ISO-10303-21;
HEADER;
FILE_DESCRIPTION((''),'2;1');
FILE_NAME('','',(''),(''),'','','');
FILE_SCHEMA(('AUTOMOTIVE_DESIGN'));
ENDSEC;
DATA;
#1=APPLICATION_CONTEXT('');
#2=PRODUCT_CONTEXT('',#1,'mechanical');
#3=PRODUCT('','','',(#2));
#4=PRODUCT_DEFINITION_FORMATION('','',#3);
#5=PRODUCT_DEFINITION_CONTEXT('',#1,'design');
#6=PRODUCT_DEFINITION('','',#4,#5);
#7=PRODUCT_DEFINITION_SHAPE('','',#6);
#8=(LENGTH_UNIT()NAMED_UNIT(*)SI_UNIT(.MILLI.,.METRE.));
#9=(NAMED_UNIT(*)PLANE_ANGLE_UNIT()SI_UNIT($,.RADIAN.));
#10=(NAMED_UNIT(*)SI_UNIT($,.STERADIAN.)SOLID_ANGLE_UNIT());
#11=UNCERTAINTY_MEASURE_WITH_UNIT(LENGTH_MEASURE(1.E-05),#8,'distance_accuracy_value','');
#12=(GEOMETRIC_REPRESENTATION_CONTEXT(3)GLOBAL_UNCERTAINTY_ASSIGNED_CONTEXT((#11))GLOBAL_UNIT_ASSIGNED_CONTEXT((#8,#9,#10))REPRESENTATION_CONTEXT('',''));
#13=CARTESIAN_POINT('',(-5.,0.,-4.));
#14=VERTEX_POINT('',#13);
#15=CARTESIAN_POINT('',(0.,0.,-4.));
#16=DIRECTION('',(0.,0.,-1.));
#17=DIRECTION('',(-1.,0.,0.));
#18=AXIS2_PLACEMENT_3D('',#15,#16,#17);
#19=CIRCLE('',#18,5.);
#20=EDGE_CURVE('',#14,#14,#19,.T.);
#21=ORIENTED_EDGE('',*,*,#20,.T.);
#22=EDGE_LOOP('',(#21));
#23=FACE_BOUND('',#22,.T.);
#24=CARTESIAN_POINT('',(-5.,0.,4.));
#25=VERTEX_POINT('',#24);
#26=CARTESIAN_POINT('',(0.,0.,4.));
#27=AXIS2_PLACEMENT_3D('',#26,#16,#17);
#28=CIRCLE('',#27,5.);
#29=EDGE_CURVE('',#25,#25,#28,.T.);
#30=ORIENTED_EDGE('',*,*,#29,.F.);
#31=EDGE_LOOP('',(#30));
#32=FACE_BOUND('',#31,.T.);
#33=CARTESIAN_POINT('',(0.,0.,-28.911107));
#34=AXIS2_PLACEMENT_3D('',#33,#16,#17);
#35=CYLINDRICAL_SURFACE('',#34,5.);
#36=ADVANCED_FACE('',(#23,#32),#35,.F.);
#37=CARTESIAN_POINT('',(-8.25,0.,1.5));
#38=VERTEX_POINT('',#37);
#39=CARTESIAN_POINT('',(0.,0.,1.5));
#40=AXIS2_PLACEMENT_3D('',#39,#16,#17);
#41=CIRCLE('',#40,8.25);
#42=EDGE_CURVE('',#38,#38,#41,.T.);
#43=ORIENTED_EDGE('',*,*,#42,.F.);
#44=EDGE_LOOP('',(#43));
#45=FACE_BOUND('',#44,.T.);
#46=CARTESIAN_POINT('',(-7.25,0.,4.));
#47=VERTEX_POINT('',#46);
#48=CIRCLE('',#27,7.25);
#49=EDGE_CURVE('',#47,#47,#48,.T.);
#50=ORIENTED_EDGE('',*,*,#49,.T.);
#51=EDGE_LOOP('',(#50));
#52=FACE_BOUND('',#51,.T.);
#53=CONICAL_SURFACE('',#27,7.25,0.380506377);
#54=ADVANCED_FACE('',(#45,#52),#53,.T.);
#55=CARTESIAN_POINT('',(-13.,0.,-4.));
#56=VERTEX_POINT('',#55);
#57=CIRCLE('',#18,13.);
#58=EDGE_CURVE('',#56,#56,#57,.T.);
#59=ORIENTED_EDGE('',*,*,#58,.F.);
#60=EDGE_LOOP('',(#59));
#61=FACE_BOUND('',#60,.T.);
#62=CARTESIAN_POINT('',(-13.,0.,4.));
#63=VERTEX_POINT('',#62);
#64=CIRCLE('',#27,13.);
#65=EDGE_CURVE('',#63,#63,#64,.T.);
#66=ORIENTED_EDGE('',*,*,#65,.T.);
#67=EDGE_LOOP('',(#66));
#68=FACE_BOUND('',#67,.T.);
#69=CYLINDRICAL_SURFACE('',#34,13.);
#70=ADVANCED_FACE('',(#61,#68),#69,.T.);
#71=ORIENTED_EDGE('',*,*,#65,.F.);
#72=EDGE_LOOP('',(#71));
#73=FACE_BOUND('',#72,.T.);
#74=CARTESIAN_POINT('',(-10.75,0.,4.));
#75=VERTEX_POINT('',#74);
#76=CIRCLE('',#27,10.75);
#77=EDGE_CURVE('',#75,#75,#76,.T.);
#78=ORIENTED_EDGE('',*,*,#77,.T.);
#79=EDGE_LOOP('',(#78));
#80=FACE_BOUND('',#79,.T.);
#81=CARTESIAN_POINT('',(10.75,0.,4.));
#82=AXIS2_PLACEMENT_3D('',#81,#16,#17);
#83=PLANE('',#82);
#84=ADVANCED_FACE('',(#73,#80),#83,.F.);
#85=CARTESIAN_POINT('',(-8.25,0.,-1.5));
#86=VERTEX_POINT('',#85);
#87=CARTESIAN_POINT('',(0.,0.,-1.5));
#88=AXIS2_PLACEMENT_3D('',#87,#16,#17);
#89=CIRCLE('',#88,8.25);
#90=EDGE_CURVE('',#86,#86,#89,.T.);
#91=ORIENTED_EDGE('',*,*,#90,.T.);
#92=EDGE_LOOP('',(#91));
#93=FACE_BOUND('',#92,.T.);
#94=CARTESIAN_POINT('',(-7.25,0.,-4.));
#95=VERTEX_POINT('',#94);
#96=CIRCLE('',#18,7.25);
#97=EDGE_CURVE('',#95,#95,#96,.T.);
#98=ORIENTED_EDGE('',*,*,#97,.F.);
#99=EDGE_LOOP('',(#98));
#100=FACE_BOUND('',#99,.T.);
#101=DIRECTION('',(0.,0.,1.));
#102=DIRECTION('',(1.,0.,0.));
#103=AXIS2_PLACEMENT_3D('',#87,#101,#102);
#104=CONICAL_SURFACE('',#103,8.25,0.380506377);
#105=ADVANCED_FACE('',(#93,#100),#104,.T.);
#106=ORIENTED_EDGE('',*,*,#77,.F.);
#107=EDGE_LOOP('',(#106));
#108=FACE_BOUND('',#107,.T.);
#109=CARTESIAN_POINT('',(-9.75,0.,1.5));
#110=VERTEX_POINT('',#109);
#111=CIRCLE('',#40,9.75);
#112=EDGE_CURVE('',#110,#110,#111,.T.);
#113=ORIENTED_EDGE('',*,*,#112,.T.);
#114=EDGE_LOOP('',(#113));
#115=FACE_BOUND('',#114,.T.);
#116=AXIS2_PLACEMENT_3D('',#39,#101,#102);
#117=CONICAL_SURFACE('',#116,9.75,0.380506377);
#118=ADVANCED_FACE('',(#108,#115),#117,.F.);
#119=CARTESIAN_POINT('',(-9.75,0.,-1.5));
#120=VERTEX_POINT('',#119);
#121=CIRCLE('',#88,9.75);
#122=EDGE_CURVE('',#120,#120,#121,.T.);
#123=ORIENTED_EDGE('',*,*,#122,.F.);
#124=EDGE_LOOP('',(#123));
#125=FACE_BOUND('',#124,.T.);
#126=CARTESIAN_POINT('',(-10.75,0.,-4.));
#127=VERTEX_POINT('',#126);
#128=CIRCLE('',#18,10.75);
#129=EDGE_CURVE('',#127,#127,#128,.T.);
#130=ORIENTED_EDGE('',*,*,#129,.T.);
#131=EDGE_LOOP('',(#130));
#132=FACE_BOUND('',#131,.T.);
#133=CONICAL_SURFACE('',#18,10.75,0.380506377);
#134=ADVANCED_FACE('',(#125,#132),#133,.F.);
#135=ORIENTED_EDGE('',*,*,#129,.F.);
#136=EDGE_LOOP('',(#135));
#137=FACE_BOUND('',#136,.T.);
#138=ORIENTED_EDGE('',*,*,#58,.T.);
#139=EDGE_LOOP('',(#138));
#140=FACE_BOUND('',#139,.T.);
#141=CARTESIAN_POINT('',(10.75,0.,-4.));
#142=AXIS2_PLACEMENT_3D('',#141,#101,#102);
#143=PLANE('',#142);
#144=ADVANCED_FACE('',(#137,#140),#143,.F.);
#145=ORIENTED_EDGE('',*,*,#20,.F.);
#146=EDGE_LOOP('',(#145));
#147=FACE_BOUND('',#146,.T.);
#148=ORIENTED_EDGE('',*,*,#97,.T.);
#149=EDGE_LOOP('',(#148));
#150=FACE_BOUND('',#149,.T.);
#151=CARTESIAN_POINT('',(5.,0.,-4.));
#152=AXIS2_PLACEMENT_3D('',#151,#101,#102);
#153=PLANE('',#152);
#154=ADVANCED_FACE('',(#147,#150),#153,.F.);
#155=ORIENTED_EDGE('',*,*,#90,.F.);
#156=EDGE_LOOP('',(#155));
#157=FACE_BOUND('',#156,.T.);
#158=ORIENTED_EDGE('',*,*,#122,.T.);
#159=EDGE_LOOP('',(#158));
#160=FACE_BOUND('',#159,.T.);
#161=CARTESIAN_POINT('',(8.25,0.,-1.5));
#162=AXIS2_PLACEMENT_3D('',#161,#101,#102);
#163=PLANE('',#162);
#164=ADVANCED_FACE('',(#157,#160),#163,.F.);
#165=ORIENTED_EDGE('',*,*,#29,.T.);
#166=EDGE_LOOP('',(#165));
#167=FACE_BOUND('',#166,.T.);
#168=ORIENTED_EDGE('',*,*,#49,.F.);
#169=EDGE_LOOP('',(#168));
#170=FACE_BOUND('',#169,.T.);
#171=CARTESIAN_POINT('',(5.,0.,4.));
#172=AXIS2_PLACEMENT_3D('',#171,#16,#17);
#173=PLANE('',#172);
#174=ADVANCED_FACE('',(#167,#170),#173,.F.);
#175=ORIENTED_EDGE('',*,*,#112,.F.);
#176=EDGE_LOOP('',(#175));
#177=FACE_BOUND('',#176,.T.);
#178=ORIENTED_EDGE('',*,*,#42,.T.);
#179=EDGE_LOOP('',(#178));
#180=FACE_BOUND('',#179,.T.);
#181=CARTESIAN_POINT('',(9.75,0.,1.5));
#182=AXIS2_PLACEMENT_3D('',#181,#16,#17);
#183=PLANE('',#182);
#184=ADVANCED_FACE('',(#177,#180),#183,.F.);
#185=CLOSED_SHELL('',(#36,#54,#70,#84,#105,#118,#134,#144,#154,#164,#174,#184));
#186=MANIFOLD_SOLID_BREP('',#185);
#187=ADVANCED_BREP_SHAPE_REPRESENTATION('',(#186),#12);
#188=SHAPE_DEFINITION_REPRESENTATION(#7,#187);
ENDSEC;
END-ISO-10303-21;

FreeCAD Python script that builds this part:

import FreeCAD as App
import Part
import Sketcher

V = App.Vector
Q = App.Units.Quantity

doc = App.newDocument("Part")
params = doc.addObject("Spreadsheet::Sheet", "Params")
for row, (alias, value) in enumerate([
    ("sketch1_height", "8 mm"),
    ("sketch1_width", "1.5 mm"),
    ("revolution_angle", "360 deg"),
], start=1):
    params.set(f"A{row}", alias)
    params.set(f"B{row}", "=" + value)
    params.setAlias(f"B{row}", alias)

body = doc.addObject("PartDesign::Body", "Body")

sketch1 = doc.addObject("Sketcher::SketchObject", "Sketch")
body.addObject(sketch1)
sketch1.AttachmentSupport = (doc.XZ_Plane, [""])
sketch1.MapMode = "FlatFace"
sketch1.addGeometry(Part.LineSegment(V(8.2, -1.5, 0), V(7.2, -4, 0)), False)
sketch1.addGeometry(Part.LineSegment(V(7.2, -4, 0), V(5, -4, 0)), False)
sketch1.addGeometry(Part.LineSegment(V(5, -4, 0), V(5, 4, 0)), False)
sketch1.addGeometry(Part.LineSegment(V(5, 4, 0), V(7.2, 4, 0)), False)
sketch1.addGeometry(Part.LineSegment(V(7.2, 4, 0), V(8.2, 1.5, 0)), False)
sketch1.addGeometry(Part.LineSegment(V(8.2, 1.5, 0), V(9.8, 1.5, 0)), False)
sketch1.addGeometry(Part.LineSegment(V(9.8, 1.5, 0), V(10.8, 4, 0)), False)
sketch1.addGeometry(Part.LineSegment(V(10.8, 4, 0), V(13, 4, 0)), False)
sketch1.addGeometry(Part.LineSegment(V(13, 4, 0), V(13, -4, 0)), False)
sketch1.addGeometry(Part.LineSegment(V(13, -4, 0), V(10.8, -4, 0)), False)
sketch1.addGeometry(Part.LineSegment(V(10.8, -4, 0), V(9.8, -1.5, 0)), False)
sketch1.addGeometry(Part.LineSegment(V(9.8, -1.5, 0), V(8.2, -1.5, 0)), False)
sketch1.addConstraint(Sketcher.Constraint("Coincident", 0, 2, 1, 1))
sketch1.addConstraint(Sketcher.Constraint("Coincident", 1, 2, 2, 1))
sketch1.addConstraint(Sketcher.Constraint("Coincident", 2, 2, 3, 1))
sketch1.addConstraint(Sketcher.Constraint("Coincident", 3, 2, 4, 1))
sketch1.addConstraint(Sketcher.Constraint("Coincident", 4, 2, 5, 1))
sketch1.addConstraint(Sketcher.Constraint("Coincident", 5, 2, 6, 1))
sketch1.addConstraint(Sketcher.Constraint("Coincident", 6, 2, 7, 1))
sketch1.addConstraint(Sketcher.Constraint("Coincident", 7, 2, 8, 1))
sketch1.addConstraint(Sketcher.Constraint("Coincident", 8, 2, 9, 1))
sketch1.addConstraint(Sketcher.Constraint("Coincident", 9, 2, 10, 1))
sketch1.addConstraint(Sketcher.Constraint("Coincident", 10, 2, 11, 1))
sketch1.addConstraint(Sketcher.Constraint("Coincident", 11, 2, 0, 1))
sketch1.addConstraint(Sketcher.Constraint("Horizontal", 1))
sketch1.addConstraint(Sketcher.Constraint("Vertical", 2))
sketch1.addConstraint(Sketcher.Constraint("Horizontal", 3))
sketch1.addConstraint(Sketcher.Constraint("Horizontal", 5))
sketch1.addConstraint(Sketcher.Constraint("Horizontal", 7))
sketch1.addConstraint(Sketcher.Constraint("Vertical", 8))
sketch1.addConstraint(Sketcher.Constraint("Horizontal", 9))
sketch1.addConstraint(Sketcher.Constraint("Horizontal", 11))
sketch1.addConstraint(Sketcher.Constraint("Symmetric", 0, 2, 3, 2, -1))
sketch1.addConstraint(Sketcher.Constraint("Symmetric", 6, 2, 9, 2, -1))
sketch1.addConstraint(Sketcher.Constraint("Symmetric", 5, 2, 10, 2, -1))
sketch1.addConstraint(Sketcher.Constraint("Parallel", 0, 6))
sketch1.addConstraint(Sketcher.Constraint("Parallel", 4, 10))
sketch1.addConstraint(Sketcher.Constraint("Horizontal", 3, 2, 6, 2))
sketch1.addConstraint(Sketcher.Constraint("Equal", 3, 7))
sketch1.addConstraint(Sketcher.Constraint("DistanceY", 2, 1, 2, 2, Q("8 mm")))
sketch1.addConstraint(Sketcher.Constraint("DistanceX", 5, 1, 5, 2, Q("1.5 mm")))
sketch1.addConstraint(Sketcher.Constraint("DistanceX", -1, 1, 1, 2, Q("5 mm")))
sketch1.addConstraint(Sketcher.Constraint("DistanceX", -1, 1, 7, 2, Q("13 mm")))
sketch1.addConstraint(Sketcher.Constraint("DistanceX", 3, 2, 4, 2, Q("1 mm")))
sketch1.addConstraint(Sketcher.Constraint("DistanceY", 10, 2, 5, 2, Q("3 mm")))
sketch1.setExpression("Constraints[27]", "Params.sketch1_height")
sketch1.setExpression("Constraints[28]", "Params.sketch1_width")
revolution = doc.addObject("PartDesign::Revolution", "Revolution")
body.addObject(revolution)
revolution.Profile = sketch1
revolution.ReferenceAxis = (sketch1, ["V_Axis"])
revolution.setExpression("Angle", "Params.revolution_angle")

doc.recompute()
